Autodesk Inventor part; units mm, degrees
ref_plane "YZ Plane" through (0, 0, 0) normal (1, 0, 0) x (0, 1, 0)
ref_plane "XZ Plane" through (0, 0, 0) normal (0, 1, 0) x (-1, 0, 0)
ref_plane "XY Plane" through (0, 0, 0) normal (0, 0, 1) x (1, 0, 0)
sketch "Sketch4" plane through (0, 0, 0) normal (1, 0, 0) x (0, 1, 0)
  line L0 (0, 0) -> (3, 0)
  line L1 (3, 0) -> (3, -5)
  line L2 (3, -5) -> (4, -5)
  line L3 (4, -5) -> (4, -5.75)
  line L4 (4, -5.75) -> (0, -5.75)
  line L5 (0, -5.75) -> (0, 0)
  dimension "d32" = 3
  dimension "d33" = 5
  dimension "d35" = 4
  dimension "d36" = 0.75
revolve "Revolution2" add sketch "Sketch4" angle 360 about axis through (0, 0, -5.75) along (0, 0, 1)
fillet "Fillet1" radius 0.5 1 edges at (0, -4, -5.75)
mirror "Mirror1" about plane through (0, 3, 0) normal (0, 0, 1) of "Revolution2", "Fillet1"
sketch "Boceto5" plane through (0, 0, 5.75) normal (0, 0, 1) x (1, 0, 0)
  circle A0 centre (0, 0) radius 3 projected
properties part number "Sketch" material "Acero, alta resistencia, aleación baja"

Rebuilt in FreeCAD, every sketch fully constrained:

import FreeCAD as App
import Part
import Sketcher
Q = App.Units.Quantity


def edges_at(feature, points):
    """Names of the edges that pass closest to the given points."""
    edges = feature.Shape.Edges
    near = lambda p: min(range(len(edges)), key=lambda i: edges[i].distToShape(Part.Vertex(*p))[0])
    return sorted({f"Edge{near(p) + 1}" for p in points})

doc = App.newDocument("Part")
body = doc.addObject("PartDesign::Body", "Body")

sketch1 = body.newObject("Sketcher::SketchObject", "Sketch")
sketch1.AttachmentSupport = (doc.getObject("YZ_Plane"), [""])
sketch1.MapMode = "FlatFace"
sketch1.addGeometry([
    Part.LineSegment(App.Vector(3, 0, 0), App.Vector(0, 0, 0)),
    Part.LineSegment(App.Vector(0, 0, 0), App.Vector(0, -5.8, 0)),
    Part.LineSegment(App.Vector(0, -5.8, 0), App.Vector(4, -5.8, 0)),
    Part.LineSegment(App.Vector(4, -5.8, 0), App.Vector(4, -5, 0)),
    Part.LineSegment(App.Vector(4, -5, 0), App.Vector(3, -5, 0)),
    Part.LineSegment(App.Vector(3, -5, 0), App.Vector(3, 0, 0)),
], False)
sketch1.addConstraint([
    Sketcher.Constraint("Coincident", 0, 2, 1, 1),
    Sketcher.Constraint("Coincident", 1, 2, 2, 1),
    Sketcher.Constraint("Coincident", 2, 2, 3, 1),
    Sketcher.Constraint("Coincident", 3, 2, 4, 1),
    Sketcher.Constraint("Coincident", 4, 2, 5, 1),
    Sketcher.Constraint("Coincident", 5, 2, 0, 1),
    Sketcher.Constraint("Horizontal", 0),
    Sketcher.Constraint("Vertical", 1),
    Sketcher.Constraint("Horizontal", 2),
    Sketcher.Constraint("Vertical", 3),
    Sketcher.Constraint("Horizontal", 4),
    Sketcher.Constraint("Vertical", 5),
    Sketcher.Constraint("Coincident", 0, 2, -1, 1),
    Sketcher.Constraint("DistanceX", 0, 2, 0, 1, Q("3 mm")),
    Sketcher.Constraint("DistanceX", 2, 1, 2, 2, Q("4 mm")),
    Sketcher.Constraint("DistanceY", 5, 1, 5, 2, Q("5 mm")),
    Sketcher.Constraint("DistanceY", 3, 1, 3, 2, Q("0.75 mm")),
])
revolution = body.newObject("PartDesign::Revolution", "Revolution")
revolution.Profile = sketch1
revolution.ReferenceAxis = (sketch1, ["V_Axis"])
revolution.Angle = 360
doc.recompute()

fillet = body.newObject("PartDesign::Fillet", "Fillet")
fillet.Base = (revolution, edges_at(revolution, [(0, -4, -5.75)]))
fillet.Radius = 0.5
doc.recompute()

mirrored = body.newObject("PartDesign::Mirrored", "Mirrored")
mirrored.Originals = [revolution, fillet]
mirrored.MirrorPlane = (doc.getObject("XY_Plane"), [""])
body.Tip = mirrored

doc.recompute()
